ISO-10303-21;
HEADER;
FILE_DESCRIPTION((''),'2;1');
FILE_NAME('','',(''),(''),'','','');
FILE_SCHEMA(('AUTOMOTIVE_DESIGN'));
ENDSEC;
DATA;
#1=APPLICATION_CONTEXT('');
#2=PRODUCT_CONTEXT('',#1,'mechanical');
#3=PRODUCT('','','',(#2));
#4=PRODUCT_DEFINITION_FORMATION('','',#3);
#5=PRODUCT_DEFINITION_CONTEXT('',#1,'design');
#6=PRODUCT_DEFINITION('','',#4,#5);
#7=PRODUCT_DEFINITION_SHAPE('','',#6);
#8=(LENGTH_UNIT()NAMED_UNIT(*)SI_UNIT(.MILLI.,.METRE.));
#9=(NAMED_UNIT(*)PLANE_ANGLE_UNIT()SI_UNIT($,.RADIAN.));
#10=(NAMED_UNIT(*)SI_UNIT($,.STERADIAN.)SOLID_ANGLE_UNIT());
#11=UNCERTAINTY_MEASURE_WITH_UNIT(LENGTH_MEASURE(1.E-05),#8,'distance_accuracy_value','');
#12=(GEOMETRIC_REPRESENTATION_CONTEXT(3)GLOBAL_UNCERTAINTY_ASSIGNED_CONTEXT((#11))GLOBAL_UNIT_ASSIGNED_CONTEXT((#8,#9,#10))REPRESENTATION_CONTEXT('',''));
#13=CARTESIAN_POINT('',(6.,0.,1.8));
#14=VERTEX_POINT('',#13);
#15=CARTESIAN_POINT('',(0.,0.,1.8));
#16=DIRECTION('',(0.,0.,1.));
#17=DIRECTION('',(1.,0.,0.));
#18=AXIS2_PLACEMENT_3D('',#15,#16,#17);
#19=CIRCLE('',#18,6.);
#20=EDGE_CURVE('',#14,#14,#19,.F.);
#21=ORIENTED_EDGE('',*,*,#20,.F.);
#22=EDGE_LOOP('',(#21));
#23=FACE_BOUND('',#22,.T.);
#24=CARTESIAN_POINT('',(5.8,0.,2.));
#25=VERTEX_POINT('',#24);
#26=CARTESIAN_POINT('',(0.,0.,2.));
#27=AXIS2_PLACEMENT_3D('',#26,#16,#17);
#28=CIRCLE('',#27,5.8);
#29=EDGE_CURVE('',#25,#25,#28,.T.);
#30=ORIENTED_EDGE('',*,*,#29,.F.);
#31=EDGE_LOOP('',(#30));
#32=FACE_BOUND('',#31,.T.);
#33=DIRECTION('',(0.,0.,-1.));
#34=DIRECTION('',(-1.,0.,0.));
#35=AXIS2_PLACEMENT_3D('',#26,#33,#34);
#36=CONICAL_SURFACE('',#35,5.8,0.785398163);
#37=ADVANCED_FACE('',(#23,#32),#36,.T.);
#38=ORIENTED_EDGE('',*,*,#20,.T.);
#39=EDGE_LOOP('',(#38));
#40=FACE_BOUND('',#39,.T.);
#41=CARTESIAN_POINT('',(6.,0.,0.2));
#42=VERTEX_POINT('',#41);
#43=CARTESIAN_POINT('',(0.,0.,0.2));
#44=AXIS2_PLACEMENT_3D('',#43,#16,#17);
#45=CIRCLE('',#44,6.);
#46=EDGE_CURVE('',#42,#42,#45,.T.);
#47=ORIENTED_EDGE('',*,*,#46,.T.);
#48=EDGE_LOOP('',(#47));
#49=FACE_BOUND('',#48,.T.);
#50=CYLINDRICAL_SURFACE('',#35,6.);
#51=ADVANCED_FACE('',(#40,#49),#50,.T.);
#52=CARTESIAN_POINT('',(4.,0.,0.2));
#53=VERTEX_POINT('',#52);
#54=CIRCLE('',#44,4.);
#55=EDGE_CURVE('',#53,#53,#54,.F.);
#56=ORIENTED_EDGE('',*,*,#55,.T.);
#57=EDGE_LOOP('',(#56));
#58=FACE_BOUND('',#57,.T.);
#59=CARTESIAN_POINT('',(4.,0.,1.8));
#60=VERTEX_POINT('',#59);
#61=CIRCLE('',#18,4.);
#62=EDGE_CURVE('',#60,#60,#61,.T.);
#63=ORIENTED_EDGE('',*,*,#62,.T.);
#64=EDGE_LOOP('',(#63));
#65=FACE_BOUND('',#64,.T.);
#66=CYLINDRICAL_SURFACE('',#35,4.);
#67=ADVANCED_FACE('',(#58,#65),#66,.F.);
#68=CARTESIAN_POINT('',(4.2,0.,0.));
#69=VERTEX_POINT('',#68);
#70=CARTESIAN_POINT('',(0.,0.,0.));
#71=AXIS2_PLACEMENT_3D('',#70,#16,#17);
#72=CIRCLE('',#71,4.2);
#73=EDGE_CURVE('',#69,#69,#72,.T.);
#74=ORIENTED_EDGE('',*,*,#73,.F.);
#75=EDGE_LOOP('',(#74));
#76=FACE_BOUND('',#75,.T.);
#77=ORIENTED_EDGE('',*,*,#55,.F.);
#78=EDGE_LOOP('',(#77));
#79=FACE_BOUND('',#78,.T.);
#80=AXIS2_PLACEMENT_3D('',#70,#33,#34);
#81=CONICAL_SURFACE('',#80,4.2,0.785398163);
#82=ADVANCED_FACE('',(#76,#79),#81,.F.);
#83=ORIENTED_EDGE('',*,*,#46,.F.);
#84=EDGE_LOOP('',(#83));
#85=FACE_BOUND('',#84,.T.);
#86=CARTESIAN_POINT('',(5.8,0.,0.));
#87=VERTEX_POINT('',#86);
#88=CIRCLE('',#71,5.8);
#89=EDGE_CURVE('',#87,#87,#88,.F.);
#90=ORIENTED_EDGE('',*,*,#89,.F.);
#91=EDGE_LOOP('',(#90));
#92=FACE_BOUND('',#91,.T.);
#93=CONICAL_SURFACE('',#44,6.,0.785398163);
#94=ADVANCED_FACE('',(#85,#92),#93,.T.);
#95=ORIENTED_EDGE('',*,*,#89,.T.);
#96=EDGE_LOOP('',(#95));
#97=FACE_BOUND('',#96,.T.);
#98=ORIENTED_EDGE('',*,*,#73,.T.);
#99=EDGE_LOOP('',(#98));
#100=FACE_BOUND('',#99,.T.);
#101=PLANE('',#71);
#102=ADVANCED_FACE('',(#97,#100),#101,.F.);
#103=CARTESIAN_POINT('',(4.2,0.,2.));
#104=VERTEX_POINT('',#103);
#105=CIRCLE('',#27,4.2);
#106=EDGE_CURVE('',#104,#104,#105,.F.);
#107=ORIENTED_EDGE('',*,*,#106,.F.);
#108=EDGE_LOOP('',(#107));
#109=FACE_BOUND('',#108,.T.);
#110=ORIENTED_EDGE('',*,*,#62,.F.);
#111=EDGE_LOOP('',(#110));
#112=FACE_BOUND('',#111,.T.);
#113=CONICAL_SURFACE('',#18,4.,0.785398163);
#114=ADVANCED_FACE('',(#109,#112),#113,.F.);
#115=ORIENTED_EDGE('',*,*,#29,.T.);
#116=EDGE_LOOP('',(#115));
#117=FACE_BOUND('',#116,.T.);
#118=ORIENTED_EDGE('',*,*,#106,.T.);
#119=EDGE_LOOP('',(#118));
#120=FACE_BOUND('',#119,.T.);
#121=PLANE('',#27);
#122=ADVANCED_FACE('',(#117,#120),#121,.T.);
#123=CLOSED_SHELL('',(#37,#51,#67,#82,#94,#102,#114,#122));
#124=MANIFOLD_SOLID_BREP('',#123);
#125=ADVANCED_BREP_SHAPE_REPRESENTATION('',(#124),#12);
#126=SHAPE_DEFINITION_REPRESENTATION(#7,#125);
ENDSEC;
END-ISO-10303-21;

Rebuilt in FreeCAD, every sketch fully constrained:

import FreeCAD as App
import Part
import Sketcher
from FreeCAD import Vector
Q = App.Units.Quantity


def edges_at(feature, points):
    """Names of the edges that pass closest to the given points."""
    edges = feature.Shape.Edges
    near = lambda p: min(range(len(edges)), key=lambda i: edges[i].distToShape(Part.Vertex(*p))[0])
    return sorted({f"Edge{near(p) + 1}" for p in points})

doc = App.newDocument("Part")
body = doc.addObject("PartDesign::Body", "Body")

# Sketch on XY plane
sketch1 = body.newObject("Sketcher::SketchObject", "Sketch")
sketch1.AttachmentSupport = (doc.getObject("XY_Plane"), [""])
sketch1.MapMode = "FlatFace"
sketch1.addGeometry([
    Part.Circle(Vector(0, 0, 0), Vector(0, 0, 1), 6),
    Part.Circle(Vector(0, 0, 0), Vector(0, 0, 1), 4),
], False)
sketch1.addConstraint([
    Sketcher.Constraint("Coincident", 0, 3, -1, 1),
    Sketcher.Constraint("Coincident", 1, 3, -1, 1),
    Sketcher.Constraint("Diameter", 0, Q("12 mm")),
    Sketcher.Constraint("Diameter", 1, Q("8 mm")),
])
pad1 = body.newObject("PartDesign::Pad", "Pad")
pad1.Profile = sketch1
pad1.Length = 2
doc.recompute()

chamfer = body.newObject("PartDesign::Chamfer", "Chamfer")
chamfer.Base = (pad1, edges_at(pad1, [
    (-6, 0, 0),
    (-6, 0, 2),
    (-4, 0, 0),
    (-4, 0, 2),
]))
chamfer.Size = 0.2

doc.recompute()
